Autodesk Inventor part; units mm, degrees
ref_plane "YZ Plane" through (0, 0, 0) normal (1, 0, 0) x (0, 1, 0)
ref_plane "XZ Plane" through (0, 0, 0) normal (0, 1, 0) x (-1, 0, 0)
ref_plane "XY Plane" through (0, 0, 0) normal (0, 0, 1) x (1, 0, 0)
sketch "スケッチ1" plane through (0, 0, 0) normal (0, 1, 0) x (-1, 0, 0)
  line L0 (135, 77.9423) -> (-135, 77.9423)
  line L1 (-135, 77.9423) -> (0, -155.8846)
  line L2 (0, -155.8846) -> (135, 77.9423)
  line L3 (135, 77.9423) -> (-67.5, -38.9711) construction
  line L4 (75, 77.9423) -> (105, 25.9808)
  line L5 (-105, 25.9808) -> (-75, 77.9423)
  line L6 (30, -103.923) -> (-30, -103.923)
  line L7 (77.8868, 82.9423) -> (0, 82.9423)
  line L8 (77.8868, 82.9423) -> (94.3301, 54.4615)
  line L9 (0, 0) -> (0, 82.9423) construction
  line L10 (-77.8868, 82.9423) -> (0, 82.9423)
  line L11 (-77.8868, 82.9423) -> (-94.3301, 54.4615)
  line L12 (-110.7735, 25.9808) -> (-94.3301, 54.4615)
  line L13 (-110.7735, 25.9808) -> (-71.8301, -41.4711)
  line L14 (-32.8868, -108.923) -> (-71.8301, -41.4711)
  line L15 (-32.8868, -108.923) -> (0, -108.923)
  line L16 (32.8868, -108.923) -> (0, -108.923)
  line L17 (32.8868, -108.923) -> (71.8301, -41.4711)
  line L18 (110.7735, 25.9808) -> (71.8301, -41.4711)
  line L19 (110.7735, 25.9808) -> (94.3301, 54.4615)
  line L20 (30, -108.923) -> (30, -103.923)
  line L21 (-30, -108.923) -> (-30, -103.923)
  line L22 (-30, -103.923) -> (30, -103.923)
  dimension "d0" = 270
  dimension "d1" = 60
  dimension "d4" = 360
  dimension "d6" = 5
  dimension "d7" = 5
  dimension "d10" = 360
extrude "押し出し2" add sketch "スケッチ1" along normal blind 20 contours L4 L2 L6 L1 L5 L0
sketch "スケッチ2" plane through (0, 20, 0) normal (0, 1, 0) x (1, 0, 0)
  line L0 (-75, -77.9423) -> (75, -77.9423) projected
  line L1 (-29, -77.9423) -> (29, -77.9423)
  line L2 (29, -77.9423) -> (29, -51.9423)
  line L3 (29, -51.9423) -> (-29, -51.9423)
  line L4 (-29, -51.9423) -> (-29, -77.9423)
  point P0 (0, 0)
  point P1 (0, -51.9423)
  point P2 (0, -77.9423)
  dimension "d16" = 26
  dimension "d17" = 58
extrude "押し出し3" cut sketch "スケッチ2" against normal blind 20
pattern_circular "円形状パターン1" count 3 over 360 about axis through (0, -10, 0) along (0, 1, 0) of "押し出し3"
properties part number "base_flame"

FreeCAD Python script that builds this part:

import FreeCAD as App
import Part
import Sketcher
Q = App.Units.Quantity

doc = App.newDocument("Part")
body = doc.addObject("PartDesign::Body", "Body")

# Sketch on XZ plane
sketch1 = doc.addObject("Sketcher::SketchObject", "Sketch")
body.addObject(sketch1)
sketch1.AttachmentSupport = (doc.XZ_Plane, [""])
sketch1.MapMode = "FlatFace"
sketch1.addGeometry(Part.LineSegment(App.Vector(-105, 26, 0), App.Vector(-75, 78, 0)), False)
sketch1.addGeometry(Part.LineSegment(App.Vector(-75, 78, 0), App.Vector(75, 78, 0)), False)
sketch1.addGeometry(Part.LineSegment(App.Vector(75, 78, 0), App.Vector(105, 26, 0)), False)
sketch1.addGeometry(Part.LineSegment(App.Vector(105, 26, 0), App.Vector(30, -104, 0)), False)
sketch1.addGeometry(Part.LineSegment(App.Vector(30, -104, 0), App.Vector(-30, -104, 0)), False)
sketch1.addGeometry(Part.LineSegment(App.Vector(-30, -104, 0), App.Vector(-105, 26, 0)), False)
sketch1.addConstraint(Sketcher.Constraint("Coincident", 0, 2, 1, 1))
sketch1.addConstraint(Sketcher.Constraint("Coincident", 1, 2, 2, 1))
sketch1.addConstraint(Sketcher.Constraint("Coincident", 2, 2, 3, 1))
sketch1.addConstraint(Sketcher.Constraint("Coincident", 3, 2, 4, 1))
sketch1.addConstraint(Sketcher.Constraint("Coincident", 4, 2, 5, 1))
sketch1.addConstraint(Sketcher.Constraint("Coincident", 5, 2, 0, 1))
sketch1.addConstraint(Sketcher.Constraint("Horizontal", 1))
sketch1.addConstraint(Sketcher.Constraint("Horizontal", 4))
sketch1.addConstraint(Sketcher.Constraint("Symmetric", 2, 2, 5, 2, -2))
sketch1.addConstraint(Sketcher.Constraint("Parallel", 0, 3))
sketch1.addConstraint(Sketcher.Constraint("Parallel", 2, 5))
sketch1.addConstraint(Sketcher.Constraint("Equal", 0, 2))
sketch1.addConstraint(Sketcher.Constraint("DistanceX", 4, 2, 4, 1, Q("60 mm")))
sketch1.addConstraint(Sketcher.Constraint("Angle", 0, Q("60 deg")))
sketch1.addConstraint(Sketcher.Constraint("Distance", 0, Q("60 mm")))
sketch1.addConstraint(Sketcher.Constraint("DistanceX", 1, 1, 1, 2, Q("150 mm")))
sketch1.addConstraint(Sketcher.Constraint("DistanceY", 3, 2, -1, 1, Q("103.923 mm")))
pad1 = doc.addObject("PartDesign::Pad", "Pad")
body.addObject(pad1)
pad1.Profile = sketch1
pad1.Length = 20
pad1.Reversed = True

# Sketch on XZ plane
sketch2 = doc.addObject("Sketcher::SketchObject", "Sketch001")
body.addObject(sketch2)
sketch2.AttachmentSupport = (doc.XZ_Plane, [""])
sketch2.MapMode = "FlatFace"
sketch2.AttachmentOffset = App.Placement(App.Vector(0, 0, -20), App.Rotation())
sketch2.addGeometry(Part.LineSegment(App.Vector(-29, 52, 0), App.Vector(-29, 78, 0)), False)
sketch2.addGeometry(Part.LineSegment(App.Vector(-29, 78, 0), App.Vector(29, 78, 0)), False)
sketch2.addGeometry(Part.LineSegment(App.Vector(29, 78, 0), App.Vector(29, 52, 0)), False)
sketch2.addGeometry(Part.LineSegment(App.Vector(29, 52, 0), App.Vector(-29, 52, 0)), False)
sketch2.addConstraint(Sketcher.Constraint("Coincident", 0, 2, 1, 1))
sketch2.addConstraint(Sketcher.Constraint("Coincident", 1, 2, 2, 1))
sketch2.addConstraint(Sketcher.Constraint("Coincident", 2, 2, 3, 1))
sketch2.addConstraint(Sketcher.Constraint("Coincident", 3, 2, 0, 1))
sketch2.addConstraint(Sketcher.Constraint("Vertical", 0))
sketch2.addConstraint(Sketcher.Constraint("Horizontal", 1))
sketch2.addConstraint(Sketcher.Constraint("Vertical", 2))
sketch2.addConstraint(Sketcher.Constraint("Horizontal", 3))
sketch2.addConstraint(Sketcher.Constraint("DistanceX", 1, 1, 1, 2, Q("58 mm")))
sketch2.addConstraint(Sketcher.Constraint("DistanceY", 0, 1, 0, 2, Q("26 mm")))
sketch2.addConstraint(Sketcher.Constraint("DistanceX", 0, 2, -1, 1, Q("29 mm")))
sketch2.addConstraint(Sketcher.Constraint("DistanceY", -1, 1, 0, 2, Q("77.9423 mm")))
pocket1 = doc.addObject("PartDesign::Pocket", "Pocket")
body.addObject(pocket1)
pocket1.Profile = sketch2
pocket1.Length = 20
pocket1.Reversed = True
doc.recompute()

polarpattern = doc.addObject("PartDesign::PolarPattern", "PolarPattern")
body.addObject(polarpattern)
polarpattern.Originals = [pocket1]
polarpattern.Axis = (doc.Y_Axis, [""])
polarpattern.Angle = 360
polarpattern.Occurrences = 3
body.Tip = polarpattern

doc.recompute()
